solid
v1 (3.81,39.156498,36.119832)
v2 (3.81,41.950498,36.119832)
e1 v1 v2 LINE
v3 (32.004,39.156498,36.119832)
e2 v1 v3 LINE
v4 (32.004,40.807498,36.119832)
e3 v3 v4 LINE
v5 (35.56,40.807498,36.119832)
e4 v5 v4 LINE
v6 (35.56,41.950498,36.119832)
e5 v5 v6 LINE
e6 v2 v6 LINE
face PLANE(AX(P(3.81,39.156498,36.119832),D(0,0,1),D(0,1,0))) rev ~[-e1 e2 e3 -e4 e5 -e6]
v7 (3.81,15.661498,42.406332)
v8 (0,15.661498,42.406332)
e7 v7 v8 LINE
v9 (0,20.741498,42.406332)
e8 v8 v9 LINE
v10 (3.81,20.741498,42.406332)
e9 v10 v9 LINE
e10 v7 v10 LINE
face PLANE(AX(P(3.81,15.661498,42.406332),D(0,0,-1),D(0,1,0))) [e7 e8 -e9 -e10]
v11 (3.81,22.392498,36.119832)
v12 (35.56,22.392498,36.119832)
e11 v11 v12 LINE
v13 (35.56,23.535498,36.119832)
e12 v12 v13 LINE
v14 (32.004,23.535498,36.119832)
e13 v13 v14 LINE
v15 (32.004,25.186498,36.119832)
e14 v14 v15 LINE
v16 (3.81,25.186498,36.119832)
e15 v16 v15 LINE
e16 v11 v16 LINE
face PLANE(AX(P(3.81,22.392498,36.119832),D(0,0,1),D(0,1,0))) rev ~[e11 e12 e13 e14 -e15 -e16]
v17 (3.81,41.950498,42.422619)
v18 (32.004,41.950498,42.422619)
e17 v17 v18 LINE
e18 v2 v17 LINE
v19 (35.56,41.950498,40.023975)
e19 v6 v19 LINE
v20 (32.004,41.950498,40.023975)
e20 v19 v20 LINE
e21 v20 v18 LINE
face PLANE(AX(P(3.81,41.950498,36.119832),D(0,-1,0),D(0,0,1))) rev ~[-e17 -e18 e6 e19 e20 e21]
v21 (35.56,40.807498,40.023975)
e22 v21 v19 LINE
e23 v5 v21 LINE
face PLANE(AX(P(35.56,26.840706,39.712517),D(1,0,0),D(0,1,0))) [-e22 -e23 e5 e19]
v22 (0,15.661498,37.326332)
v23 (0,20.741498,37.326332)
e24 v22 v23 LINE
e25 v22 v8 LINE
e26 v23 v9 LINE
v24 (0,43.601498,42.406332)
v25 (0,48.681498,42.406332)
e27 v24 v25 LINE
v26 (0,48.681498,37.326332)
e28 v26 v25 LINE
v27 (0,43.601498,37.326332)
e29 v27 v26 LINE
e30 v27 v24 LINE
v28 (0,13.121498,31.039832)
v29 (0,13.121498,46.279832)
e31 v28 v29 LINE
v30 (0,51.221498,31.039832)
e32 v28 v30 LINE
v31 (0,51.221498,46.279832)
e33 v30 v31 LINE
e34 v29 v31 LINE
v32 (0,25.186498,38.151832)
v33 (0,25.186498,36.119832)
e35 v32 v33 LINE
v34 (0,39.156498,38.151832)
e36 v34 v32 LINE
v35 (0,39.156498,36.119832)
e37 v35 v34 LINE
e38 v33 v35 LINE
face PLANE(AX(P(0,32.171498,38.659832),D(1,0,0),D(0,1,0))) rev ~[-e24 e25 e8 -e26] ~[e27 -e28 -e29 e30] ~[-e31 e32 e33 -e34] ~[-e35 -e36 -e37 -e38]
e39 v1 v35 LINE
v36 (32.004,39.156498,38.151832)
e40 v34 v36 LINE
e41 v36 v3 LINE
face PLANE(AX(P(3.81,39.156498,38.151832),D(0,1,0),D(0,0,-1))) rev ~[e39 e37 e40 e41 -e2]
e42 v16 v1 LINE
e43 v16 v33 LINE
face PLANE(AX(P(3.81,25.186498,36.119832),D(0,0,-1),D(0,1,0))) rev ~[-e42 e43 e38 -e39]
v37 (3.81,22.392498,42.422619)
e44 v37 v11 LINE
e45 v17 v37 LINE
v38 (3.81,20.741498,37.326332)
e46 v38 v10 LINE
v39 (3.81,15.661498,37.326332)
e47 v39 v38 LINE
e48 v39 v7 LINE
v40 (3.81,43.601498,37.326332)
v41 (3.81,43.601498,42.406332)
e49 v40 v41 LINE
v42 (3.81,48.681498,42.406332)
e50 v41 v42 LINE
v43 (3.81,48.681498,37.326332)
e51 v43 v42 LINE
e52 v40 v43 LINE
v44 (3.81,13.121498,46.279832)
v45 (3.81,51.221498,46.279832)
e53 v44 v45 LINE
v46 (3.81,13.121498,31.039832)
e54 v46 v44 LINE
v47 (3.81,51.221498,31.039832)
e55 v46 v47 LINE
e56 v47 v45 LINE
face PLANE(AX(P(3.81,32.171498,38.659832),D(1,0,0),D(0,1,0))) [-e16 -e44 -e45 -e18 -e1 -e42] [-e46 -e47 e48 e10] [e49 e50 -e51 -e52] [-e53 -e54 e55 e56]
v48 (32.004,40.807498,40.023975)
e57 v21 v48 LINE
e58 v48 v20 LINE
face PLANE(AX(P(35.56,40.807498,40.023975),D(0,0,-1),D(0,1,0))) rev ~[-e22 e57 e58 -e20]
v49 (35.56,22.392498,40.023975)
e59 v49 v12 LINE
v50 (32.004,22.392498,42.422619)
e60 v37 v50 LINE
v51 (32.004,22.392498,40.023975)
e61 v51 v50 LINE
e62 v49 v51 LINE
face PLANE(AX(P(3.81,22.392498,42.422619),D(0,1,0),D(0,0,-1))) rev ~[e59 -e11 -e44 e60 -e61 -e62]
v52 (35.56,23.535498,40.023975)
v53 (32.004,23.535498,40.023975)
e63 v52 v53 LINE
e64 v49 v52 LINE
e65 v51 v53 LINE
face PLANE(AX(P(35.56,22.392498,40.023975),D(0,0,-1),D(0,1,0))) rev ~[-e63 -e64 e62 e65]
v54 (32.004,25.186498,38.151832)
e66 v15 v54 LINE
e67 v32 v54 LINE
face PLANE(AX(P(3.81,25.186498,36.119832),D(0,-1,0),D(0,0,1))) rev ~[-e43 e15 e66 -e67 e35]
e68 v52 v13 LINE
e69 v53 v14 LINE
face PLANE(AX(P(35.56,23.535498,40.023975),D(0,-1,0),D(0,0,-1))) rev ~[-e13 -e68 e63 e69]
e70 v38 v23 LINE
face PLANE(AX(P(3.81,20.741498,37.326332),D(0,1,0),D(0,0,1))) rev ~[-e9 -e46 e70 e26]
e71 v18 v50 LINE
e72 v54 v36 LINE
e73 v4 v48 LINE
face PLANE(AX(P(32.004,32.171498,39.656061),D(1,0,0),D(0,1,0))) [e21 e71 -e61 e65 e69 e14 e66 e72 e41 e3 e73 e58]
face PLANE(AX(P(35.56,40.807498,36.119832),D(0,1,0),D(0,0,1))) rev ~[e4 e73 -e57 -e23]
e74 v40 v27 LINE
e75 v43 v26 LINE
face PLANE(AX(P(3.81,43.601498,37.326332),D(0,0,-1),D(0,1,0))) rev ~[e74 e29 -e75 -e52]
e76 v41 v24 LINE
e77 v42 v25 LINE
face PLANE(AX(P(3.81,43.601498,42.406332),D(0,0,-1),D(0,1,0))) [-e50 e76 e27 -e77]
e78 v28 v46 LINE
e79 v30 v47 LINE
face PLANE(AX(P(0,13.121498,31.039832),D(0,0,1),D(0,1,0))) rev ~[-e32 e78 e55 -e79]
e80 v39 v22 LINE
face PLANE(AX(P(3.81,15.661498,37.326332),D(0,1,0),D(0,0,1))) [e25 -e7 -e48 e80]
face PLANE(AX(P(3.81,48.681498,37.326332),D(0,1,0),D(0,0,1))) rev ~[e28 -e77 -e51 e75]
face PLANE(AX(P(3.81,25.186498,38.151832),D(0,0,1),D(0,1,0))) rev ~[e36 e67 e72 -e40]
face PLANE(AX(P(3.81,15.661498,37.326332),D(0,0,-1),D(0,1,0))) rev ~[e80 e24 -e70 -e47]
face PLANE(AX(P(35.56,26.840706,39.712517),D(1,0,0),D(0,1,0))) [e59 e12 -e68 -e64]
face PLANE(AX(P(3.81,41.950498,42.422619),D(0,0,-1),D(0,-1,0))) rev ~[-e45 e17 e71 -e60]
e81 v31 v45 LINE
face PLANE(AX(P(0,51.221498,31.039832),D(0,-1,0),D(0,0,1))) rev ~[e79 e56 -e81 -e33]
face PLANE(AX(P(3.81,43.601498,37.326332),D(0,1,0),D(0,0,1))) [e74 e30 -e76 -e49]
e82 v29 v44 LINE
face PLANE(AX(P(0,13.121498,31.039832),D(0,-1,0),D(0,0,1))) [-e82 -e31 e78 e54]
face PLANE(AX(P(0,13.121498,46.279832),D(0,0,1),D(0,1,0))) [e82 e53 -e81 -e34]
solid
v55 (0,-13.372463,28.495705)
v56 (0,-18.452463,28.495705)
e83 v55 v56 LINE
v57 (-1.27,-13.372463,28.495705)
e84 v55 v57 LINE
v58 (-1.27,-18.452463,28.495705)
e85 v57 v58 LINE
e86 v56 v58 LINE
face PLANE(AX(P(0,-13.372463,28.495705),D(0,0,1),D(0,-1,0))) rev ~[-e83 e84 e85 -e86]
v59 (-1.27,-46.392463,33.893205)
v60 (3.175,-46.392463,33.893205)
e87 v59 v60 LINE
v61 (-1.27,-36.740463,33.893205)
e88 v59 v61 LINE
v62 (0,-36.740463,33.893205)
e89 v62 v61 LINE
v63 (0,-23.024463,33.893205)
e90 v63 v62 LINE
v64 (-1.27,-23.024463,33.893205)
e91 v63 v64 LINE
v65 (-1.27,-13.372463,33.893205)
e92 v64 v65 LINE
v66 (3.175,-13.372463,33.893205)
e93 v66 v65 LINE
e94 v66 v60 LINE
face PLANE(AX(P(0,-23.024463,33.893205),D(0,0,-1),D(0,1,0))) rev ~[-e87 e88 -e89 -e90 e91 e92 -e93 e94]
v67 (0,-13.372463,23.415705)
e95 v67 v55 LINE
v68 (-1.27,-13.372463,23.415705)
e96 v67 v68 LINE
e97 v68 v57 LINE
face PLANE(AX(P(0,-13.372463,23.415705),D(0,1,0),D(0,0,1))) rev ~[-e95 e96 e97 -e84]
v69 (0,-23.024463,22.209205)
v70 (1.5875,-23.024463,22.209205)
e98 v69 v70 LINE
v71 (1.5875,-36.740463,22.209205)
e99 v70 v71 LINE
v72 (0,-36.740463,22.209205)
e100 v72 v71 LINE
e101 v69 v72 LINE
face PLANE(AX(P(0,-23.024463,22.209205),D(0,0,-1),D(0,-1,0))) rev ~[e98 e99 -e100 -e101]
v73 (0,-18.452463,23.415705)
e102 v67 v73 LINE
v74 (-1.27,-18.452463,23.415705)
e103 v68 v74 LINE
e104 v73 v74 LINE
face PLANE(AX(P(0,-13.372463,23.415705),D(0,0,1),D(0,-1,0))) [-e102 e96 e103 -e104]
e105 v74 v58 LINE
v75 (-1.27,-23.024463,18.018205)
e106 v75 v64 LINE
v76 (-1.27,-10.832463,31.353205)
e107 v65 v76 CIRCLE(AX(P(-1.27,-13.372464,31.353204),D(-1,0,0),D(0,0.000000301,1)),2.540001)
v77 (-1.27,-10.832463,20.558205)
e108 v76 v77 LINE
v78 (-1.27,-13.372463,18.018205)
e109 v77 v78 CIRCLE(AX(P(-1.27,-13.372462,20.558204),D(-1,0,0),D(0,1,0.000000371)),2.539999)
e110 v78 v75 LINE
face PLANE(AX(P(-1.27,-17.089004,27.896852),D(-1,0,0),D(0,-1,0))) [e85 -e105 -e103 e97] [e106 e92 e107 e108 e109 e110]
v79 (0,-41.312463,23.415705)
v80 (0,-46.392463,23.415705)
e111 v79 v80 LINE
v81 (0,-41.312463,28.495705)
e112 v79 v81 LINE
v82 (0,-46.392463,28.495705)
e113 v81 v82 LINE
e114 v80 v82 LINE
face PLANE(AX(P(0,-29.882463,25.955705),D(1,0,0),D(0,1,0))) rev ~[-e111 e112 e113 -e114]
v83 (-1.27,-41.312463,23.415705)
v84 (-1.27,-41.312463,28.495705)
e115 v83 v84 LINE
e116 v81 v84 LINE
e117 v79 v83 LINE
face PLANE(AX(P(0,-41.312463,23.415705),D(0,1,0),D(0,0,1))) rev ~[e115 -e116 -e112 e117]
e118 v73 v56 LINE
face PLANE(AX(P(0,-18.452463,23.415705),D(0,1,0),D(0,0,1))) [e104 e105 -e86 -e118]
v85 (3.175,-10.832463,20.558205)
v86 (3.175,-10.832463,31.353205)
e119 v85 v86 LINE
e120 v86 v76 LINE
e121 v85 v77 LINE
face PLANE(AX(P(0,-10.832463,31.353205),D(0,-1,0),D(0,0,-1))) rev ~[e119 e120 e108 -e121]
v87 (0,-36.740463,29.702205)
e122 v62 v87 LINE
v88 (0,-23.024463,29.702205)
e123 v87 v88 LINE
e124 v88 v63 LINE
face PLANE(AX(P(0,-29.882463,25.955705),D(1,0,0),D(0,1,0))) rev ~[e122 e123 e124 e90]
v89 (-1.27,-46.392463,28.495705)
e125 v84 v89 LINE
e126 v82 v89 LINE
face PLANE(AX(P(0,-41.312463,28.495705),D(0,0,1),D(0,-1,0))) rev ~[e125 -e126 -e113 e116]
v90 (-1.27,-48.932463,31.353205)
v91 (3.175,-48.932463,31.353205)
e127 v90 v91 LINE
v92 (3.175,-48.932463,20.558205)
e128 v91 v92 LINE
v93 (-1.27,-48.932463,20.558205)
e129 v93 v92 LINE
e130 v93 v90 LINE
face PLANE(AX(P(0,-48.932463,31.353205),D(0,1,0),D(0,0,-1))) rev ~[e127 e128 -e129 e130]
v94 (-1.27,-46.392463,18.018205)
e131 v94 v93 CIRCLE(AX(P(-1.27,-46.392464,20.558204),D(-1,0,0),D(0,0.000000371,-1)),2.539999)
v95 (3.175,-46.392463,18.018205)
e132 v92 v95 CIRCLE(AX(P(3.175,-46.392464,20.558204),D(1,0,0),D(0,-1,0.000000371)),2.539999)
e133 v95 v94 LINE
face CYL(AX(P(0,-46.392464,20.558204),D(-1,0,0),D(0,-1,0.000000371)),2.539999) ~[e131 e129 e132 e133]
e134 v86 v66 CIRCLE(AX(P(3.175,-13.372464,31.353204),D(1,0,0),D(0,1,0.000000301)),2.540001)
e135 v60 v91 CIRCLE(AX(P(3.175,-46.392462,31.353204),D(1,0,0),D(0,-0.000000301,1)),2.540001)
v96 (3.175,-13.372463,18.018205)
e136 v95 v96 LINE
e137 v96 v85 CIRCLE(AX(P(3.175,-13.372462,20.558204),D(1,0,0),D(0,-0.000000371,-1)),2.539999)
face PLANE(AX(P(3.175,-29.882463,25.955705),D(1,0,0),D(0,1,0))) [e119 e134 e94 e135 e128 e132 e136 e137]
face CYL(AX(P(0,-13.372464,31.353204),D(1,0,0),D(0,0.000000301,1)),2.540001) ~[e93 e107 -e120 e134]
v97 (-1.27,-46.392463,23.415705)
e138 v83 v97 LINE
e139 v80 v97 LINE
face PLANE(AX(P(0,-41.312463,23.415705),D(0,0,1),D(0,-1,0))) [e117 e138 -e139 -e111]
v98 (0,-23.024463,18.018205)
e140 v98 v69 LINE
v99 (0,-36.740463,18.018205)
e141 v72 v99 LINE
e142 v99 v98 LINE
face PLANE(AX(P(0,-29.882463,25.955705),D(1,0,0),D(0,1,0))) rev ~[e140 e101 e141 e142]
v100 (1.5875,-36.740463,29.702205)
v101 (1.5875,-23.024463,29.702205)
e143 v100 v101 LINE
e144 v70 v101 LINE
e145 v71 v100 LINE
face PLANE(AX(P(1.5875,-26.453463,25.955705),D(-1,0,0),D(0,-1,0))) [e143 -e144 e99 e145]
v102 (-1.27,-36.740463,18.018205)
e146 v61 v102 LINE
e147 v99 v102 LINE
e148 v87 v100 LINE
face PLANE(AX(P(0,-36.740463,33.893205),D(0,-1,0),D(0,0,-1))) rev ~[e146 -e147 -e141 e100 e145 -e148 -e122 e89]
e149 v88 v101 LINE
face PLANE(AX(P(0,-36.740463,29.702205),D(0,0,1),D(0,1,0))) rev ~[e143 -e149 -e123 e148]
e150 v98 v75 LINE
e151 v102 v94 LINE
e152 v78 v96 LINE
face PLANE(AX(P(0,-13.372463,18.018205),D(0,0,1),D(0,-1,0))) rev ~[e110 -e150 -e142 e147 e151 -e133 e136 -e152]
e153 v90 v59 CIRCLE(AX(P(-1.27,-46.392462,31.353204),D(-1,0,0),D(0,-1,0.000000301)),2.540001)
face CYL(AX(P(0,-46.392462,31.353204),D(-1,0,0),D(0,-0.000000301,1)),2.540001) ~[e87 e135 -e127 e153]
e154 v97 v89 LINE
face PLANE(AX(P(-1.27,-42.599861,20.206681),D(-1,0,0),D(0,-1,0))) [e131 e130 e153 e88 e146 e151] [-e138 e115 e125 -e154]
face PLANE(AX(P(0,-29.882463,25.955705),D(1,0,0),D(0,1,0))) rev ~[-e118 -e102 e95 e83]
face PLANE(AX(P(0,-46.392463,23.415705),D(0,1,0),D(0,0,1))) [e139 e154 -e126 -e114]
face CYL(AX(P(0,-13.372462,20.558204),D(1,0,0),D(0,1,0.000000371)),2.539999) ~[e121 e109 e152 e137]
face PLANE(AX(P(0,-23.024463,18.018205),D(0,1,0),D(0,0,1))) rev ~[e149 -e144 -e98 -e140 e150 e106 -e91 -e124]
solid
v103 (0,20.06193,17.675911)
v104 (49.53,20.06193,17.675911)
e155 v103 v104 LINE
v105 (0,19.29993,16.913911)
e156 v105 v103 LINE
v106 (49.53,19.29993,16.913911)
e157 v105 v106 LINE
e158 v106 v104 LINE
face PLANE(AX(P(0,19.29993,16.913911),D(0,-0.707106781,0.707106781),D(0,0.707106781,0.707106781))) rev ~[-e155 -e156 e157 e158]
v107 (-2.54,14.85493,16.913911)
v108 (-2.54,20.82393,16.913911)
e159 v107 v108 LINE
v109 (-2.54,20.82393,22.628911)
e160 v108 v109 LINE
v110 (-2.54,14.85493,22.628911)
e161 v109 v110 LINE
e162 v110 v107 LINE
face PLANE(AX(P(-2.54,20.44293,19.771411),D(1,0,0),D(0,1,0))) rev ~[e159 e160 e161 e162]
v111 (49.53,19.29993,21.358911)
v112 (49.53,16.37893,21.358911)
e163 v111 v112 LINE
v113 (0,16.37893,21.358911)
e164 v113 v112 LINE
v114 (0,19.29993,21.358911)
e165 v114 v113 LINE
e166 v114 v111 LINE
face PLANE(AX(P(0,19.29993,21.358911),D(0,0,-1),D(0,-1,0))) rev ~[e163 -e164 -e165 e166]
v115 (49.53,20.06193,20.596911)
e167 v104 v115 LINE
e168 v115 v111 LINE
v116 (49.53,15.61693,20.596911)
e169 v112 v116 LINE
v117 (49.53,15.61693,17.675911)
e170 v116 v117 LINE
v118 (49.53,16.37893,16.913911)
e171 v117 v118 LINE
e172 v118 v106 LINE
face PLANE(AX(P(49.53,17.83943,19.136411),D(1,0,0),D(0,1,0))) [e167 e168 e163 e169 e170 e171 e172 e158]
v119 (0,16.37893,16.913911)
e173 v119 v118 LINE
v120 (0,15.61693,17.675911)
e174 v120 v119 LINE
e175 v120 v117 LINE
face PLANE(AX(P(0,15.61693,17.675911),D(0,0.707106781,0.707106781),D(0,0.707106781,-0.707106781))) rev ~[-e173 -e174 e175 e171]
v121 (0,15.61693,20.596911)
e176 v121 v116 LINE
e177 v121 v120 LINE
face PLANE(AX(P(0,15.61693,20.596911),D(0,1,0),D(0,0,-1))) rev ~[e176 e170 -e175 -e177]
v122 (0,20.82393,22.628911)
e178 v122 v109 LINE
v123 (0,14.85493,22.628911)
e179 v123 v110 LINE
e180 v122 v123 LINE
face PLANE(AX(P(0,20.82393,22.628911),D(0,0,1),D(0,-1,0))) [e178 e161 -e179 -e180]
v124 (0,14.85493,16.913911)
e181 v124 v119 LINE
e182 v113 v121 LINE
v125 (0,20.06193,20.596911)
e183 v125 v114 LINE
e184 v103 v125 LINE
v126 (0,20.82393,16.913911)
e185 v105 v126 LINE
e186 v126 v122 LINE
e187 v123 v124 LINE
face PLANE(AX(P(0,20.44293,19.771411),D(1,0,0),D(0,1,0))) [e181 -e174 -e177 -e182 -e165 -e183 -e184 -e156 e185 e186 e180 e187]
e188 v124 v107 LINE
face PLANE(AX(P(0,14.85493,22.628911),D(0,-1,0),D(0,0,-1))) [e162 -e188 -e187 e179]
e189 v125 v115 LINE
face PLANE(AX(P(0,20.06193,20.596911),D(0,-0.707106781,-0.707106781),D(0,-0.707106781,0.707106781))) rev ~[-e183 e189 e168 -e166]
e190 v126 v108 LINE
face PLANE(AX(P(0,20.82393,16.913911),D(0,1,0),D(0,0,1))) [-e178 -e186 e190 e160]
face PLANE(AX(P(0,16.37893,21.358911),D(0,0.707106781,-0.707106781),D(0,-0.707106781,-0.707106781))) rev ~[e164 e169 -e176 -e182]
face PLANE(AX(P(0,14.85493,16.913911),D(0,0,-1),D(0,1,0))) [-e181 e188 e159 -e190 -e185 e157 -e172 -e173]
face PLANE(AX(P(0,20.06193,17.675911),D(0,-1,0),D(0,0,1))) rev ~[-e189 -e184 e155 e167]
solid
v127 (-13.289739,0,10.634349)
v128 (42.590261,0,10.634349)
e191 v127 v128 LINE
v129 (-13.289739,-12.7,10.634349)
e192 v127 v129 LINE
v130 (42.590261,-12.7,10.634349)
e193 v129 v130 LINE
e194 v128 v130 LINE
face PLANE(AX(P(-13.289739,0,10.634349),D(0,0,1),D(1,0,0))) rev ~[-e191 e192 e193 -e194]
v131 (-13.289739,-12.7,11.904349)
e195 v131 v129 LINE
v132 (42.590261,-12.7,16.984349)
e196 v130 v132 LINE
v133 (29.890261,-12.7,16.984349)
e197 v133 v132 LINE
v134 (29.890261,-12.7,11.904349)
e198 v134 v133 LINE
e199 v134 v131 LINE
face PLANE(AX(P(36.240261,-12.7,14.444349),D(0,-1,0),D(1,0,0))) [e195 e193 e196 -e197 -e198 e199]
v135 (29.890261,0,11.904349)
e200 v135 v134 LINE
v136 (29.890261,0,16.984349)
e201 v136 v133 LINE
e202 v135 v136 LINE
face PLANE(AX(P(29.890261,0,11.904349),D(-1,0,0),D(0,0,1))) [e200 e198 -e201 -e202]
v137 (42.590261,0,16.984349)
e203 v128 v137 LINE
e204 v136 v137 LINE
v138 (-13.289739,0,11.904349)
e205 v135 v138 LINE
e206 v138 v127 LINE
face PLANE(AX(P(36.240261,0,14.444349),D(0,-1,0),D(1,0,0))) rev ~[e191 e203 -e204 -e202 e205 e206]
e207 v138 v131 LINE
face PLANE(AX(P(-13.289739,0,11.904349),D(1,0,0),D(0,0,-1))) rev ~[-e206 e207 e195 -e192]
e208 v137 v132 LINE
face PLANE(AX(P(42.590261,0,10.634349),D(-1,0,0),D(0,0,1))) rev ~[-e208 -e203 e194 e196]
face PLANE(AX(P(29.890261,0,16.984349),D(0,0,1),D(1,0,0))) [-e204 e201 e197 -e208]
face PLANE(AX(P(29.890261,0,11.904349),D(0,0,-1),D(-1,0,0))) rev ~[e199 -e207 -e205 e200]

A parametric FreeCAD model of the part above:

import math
import FreeCAD as App
import Part
import Sketcher
Q = App.Units.Quantity

doc = App.newDocument("Part")
params = doc.addObject("Spreadsheet::Sheet", "Params")
for row, (alias, value) in enumerate([
    ("sketch1_width", "1.7 in"),
    ("sketch1_width2", "2.2 in"),
    ("sketch1_height", "0.2 in"),
    ("sketch1_height2", "0.05 in"),
    ("pad1_length", "0.5 in"),
    ("sketch2_radius", "0.1 in"),
    ("sketch2_width", "1.3 in"),
    ("sketch2_height", "0.425 in"),
    ("pad2_length", "0.125 in"),
    ("sketch3_width", "0.54 in"),
    ("sketch3_height", "0.295 in"),
    ("pocket1_length", "0.0625 in"),
    ("sketch4_radius", "0.1 in"),
    ("sketch4_width", "0.2 in"),
    ("sketch4_width2", "0.38 in"),
    ("sketch4_height", "0.425 in"),
    ("pad3_length", "0.05 in"),
    ("sketch5_width", "0.115 in"),
    ("pad4_length", "1.95 in"),
    ("sketch6_width", "0.235 in"),
    ("sketch6_height", "0.225 in"),
    ("pad5_length", "0.1 in"),
    ("sketch7_width", "1.5 in"),
    ("sketch7_height", "0.6 in"),
    ("pad6_length", "0.15 in"),
    ("sketch8_width", "0.2 in"),
    ("sketch8_width2", "0.55 in"),
    ("sketch8_height", "0.08 in"),
    ("pocket2_length", "0.4 in"),
    ("sketch9_width", "0.55 in"),
    ("sketch9_width2", "0.11 in"),
    ("sketch9_height", "0.08 in"),
    ("pad7_length", "1.25 in"),
    ("sketch10_width", "0.55 in"),
    ("sketch10_width2", "0.77 in"),
    ("sketch10_height", "0.08 in"),
    ("sketch10_width3", "0.065 in"),
    ("pocket3_length", "0.14 in"),
], start=1):
    params.set(f"A{row}", alias)
    params.set(f"B{row}", "=" + value)
    params.setAlias(f"B{row}", alias)

body = doc.addObject("PartDesign::Body", "Body")

# Sketch on XZ plane
sketch1 = body.newObject("Sketcher::SketchObject", "Sketch")
sketch1.AttachmentSupport = (doc.getObject("XZ_Plane"), [""])
sketch1.MapMode = "FlatFace"
sketch1.addGeometry(Part.LineSegment(App.Vector(29.9, 17, 0), App.Vector(29.9, 11.9, 0)), False)
sketch1.addGeometry(Part.LineSegment(App.Vector(29.9, 11.9, 0), App.Vector(-13.3, 11.9, 0)), False)
sketch1.addGeometry(Part.LineSegment(App.Vector(-13.3, 11.9, 0), App.Vector(-13.3, 10.6, 0)), False)
sketch1.addGeometry(Part.LineSegment(App.Vector(-13.3, 10.6, 0), App.Vector(42.6, 10.6, 0)), False)
sketch1.addGeometry(Part.LineSegment(App.Vector(42.6, 10.6, 0), App.Vector(42.6, 17, 0)), False)
sketch1.addGeometry(Part.LineSegment(App.Vector(42.6, 17, 0), App.Vector(29.9, 17, 0)), False)
sketch1.addConstraint(Sketcher.Constraint("Coincident", 0, 2, 1, 1))
sketch1.addConstraint(Sketcher.Constraint("Coincident", 1, 2, 2, 1))
sketch1.addConstraint(Sketcher.Constraint("Coincident", 2, 2, 3, 1))
sketch1.addConstraint(Sketcher.Constraint("Coincident", 3, 2, 4, 1))
sketch1.addConstraint(Sketcher.Constraint("Coincident", 4, 2, 5, 1))
sketch1.addConstraint(Sketcher.Constraint("Coincident", 5, 2, 0, 1))
sketch1.addConstraint(Sketcher.Constraint("Vertical", 0))
sketch1.addConstraint(Sketcher.Constraint("Horizontal", 1))
sketch1.addConstraint(Sketcher.Constraint("Vertical", 2))
sketch1.addConstraint(Sketcher.Constraint("Horizontal", 3))
sketch1.addConstraint(Sketcher.Constraint("Vertical", 4))
sketch1.addConstraint(Sketcher.Constraint("Horizontal", 5))
sketch1.addConstraint(Sketcher.Constraint("DistanceX", 1, 2, 1, 1, Q("1.7 in")))
sketch1.addConstraint(Sketcher.Constraint("DistanceX", 3, 1, 3, 2, Q("2.2 in")))
sketch1.addConstraint(Sketcher.Constraint("DistanceY", 0, 2, 0, 1, Q("0.2 in")))
sketch1.addConstraint(Sketcher.Constraint("DistanceY", 2, 2, 2, 1, Q("0.05 in")))
sketch1.addConstraint(Sketcher.Constraint("DistanceX", -1, 1, 0, 2, Q("29.890261 mm")))
sketch1.addConstraint(Sketcher.Constraint("DistanceY", -1, 1, 0, 2, Q("11.904349 mm")))
sketch1.setExpression("Constraints[12]", "Params.sketch1_width")
sketch1.setExpression("Constraints[13]", "Params.sketch1_width2")
sketch1.setExpression("Constraints[14]", "Params.sketch1_height")
sketch1.setExpression("Constraints[15]", "Params.sketch1_height2")
pad1 = body.newObject("PartDesign::Pad", "Pad")
pad1.Profile = sketch1
pad1.setExpression("Length", "Params.pad1_length")
body2 = doc.addObject("PartDesign::Body", "Body001")

# Sketch on YZ plane
sketch2 = body2.newObject("Sketcher::SketchObject", "Sketch001")
sketch2.AttachmentSupport = (doc.getObject("YZ_Plane001"), [""])
sketch2.MapMode = "FlatFace"
sketch2.addGeometry(Part.LineSegment(App.Vector(-13.4, 33.9, 0), App.Vector(-46.4, 33.9, 0)), False)
sketch2.addGeometry(Part.ArcOfCircle(Part.Circle(App.Vector(-46.4, 31.4, 0), App.Vector(0, 0, 1), 2.5), math.radians(90), math.radians(180)), False)
sketch2.addGeometry(Part.LineSegment(App.Vector(-48.9, 31.4, 0), App.Vector(-48.9, 20.6, 0)), False)
sketch2.addGeometry(Part.ArcOfCircle(Part.Circle(App.Vector(-46.4, 20.6, 0), App.Vector(0, 0, 1), 2.5), math.radians(180), math.radians(270)), False)
sketch2.addGeometry(Part.LineSegment(App.Vector(-46.4, 18, 0), App.Vector(-13.4, 18, 0)), False)
sketch2.addGeometry(Part.ArcOfCircle(Part.Circle(App.Vector(-13.4, 20.6, 0), App.Vector(0, 0, 1), 2.5), math.radians(-90), math.radians(0)), False)
sketch2.addGeometry(Part.LineSegment(App.Vector(-10.8, 20.6, 0), App.Vector(-10.8, 31.4, 0)), False)
sketch2.addGeometry(Part.ArcOfCircle(Part.Circle(App.Vector(-13.4, 31.4, 0), App.Vector(0, 0, 1), 2.5), math.radians(0), math.radians(90)), False)
sketch2.addConstraint(Sketcher.Constraint("Tangent", 0, 2, 1, 1))
sketch2.addConstraint(Sketcher.Constraint("Tangent", 1, 2, 2, 1))
sketch2.addConstraint(Sketcher.Constraint("Tangent", 2, 2, 3, 1))
sketch2.addConstraint(Sketcher.Constraint("Tangent", 3, 2, 4, 1))
sketch2.addConstraint(Sketcher.Constraint("Tangent", 4, 2, 5, 1))
sketch2.addConstraint(Sketcher.Constraint("Tangent", 5, 2, 6, 1))
sketch2.addConstraint(Sketcher.Constraint("Tangent", 6, 2, 7, 1))
sketch2.addConstraint(Sketcher.Constraint("Tangent", 7, 2, 0, 1))
sketch2.addConstraint(Sketcher.Constraint("Horizontal", 0))
sketch2.addConstraint(Sketcher.Constraint("Vertical", 2))
sketch2.addConstraint(Sketcher.Constraint("Horizontal", 4))
sketch2.addConstraint(Sketcher.Constraint("Vertical", 6))
sketch2.addConstraint(Sketcher.Constraint("Equal", 1, 3))
sketch2.addConstraint(Sketcher.Constraint("Equal", 3, 5))
sketch2.addConstraint(Sketcher.Constraint("Equal", 5, 7))
sketch2.addConstraint(Sketcher.Constraint("Radius", 1, Q("0.1 in")))
sketch2.addConstraint(Sketcher.Constraint("DistanceX", 0, 2, 0, 1, Q("1.3 in")))
sketch2.addConstraint(Sketcher.Constraint("DistanceY", 2, 2, 2, 1, Q("0.425 in")))
sketch2.addConstraint(Sketcher.Constraint("DistanceX", 1, 3, -1, 1, Q("46.392462 mm")))
sketch2.addConstraint(Sketcher.Constraint("DistanceY", -1, 1, 1, 3, Q("31.353204 mm")))
sketch2.setExpression("Constraints[15]", "Params.sketch2_radius")
sketch2.setExpression("Constraints[16]", "Params.sketch2_width")
sketch2.setExpression("Constraints[17]", "Params.sketch2_height")
pad2 = body2.newObject("PartDesign::Pad", "Pad001")
pad2.Profile = sketch2
pad2.setExpression("Length", "Params.pad2_length")

# Sketch on YZ plane
sketch3 = body2.newObject("Sketcher::SketchObject", "Sketch002")
sketch3.AttachmentSupport = (doc.getObject("YZ_Plane001"), [""])
sketch3.MapMode = "FlatFace"
sketch3.addGeometry(Part.LineSegment(App.Vector(-23, 30, 0), App.Vector(-23, 22, 0)), False)
sketch3.addGeometry(Part.LineSegment(App.Vector(-23, 22, 0), App.Vector(-37, 22, 0)), False)
sketch3.addGeometry(Part.LineSegment(App.Vector(-37, 22, 0), App.Vector(-37, 30, 0)), False)
sketch3.addGeometry(Part.LineSegment(App.Vector(-37, 30, 0), App.Vector(-23, 30, 0)), False)
sketch3.addConstraint(Sketcher.Constraint("Coincident", 0, 2, 1, 1))
sketch3.addConstraint(Sketcher.Constraint("Coincident", 1, 2, 2, 1))
sketch3.addConstraint(Sketcher.Constraint("Coincident", 2, 2, 3, 1))
sketch3.addConstraint(Sketcher.Constraint("Coincident", 3, 2, 0, 1))
sketch3.addConstraint(Sketcher.Constraint("Vertical", 0))
sketch3.addConstraint(Sketcher.Constraint("Horizontal", 1))
sketch3.addConstraint(Sketcher.Constraint("Vertical", 2))
sketch3.addConstraint(Sketcher.Constraint("Horizontal", 3))
sketch3.addConstraint(Sketcher.Constraint("DistanceX", 1, 2, 1, 1, Q("0.54 in")))
sketch3.addConstraint(Sketcher.Constraint("DistanceY", 0, 2, 0, 1, Q("0.295 in")))
sketch3.addConstraint(Sketcher.Constraint("DistanceX", 0, 2, -1, 1, Q("23.024463 mm")))
sketch3.addConstraint(Sketcher.Constraint("DistanceY", -1, 1, 0, 2, Q("22.209205 mm")))
sketch3.setExpression("Constraints[8]", "Params.sketch3_width")
sketch3.setExpression("Constraints[9]", "Params.sketch3_height")
pocket1 = body2.newObject("PartDesign::Pocket", "Pocket")
pocket1.Profile = sketch3
pocket1.setExpression("Length", "Params.pocket1_length")
pocket1.Reversed = True

# Sketch on YZ plane
sketch4 = body2.newObject("Sketcher::SketchObject", "Sketch003")
sketch4.AttachmentSupport = (doc.getObject("YZ_Plane001"), [""])
sketch4.MapMode = "FlatFace"
sketch4.addGeometry(Part.LineSegment(App.Vector(-23, 33.9, 0), App.Vector(-13.4, 33.9, 0)), False)
sketch4.addGeometry(Part.ArcOfCircle(Part.Circle(App.Vector(-13.4, 31.4, 0), App.Vector(0, 0, 1), 2.5), math.radians(0), math.radians(90)), False)
sketch4.addGeometry(Part.LineSegment(App.Vector(-10.8, 31.4, 0), App.Vector(-10.8, 20.6, 0)), False)
sketch4.addGeometry(Part.ArcOfCircle(Part.Circle(App.Vector(-13.4, 20.6, 0), App.Vector(0, 0, 1), 2.5), math.radians(-90), math.radians(0)), False)
sketch4.addGeometry(Part.LineSegment(App.Vector(-13.4, 18, 0), App.Vector(-23, 18, 0)), False)
sketch4.addGeometry(Part.LineSegment(App.Vector(-23, 18, 0), App.Vector(-23, 33.9, 0)), False)
sketch4.addGeometry(Part.LineSegment(App.Vector(-18.5, 23.4, 0), App.Vector(-13.4, 23.4, 0)), False)
sketch4.addGeometry(Part.LineSegment(App.Vector(-13.4, 23.4, 0), App.Vector(-13.4, 28.5, 0)), False)
sketch4.addGeometry(Part.LineSegment(App.Vector(-13.4, 28.5, 0), App.Vector(-18.5, 28.5, 0)), False)
sketch4.addGeometry(Part.LineSegment(App.Vector(-18.5, 28.5, 0), App.Vector(-18.5, 23.4, 0)), False)
sketch4.addGeometry(Part.LineSegment(App.Vector(-36.7, 18, 0), App.Vector(-46.4, 18, 0)), False)
sketch4.addGeometry(Part.ArcOfCircle(Part.Circle(App.Vector(-46.4, 20.6, 0), App.Vector(0, 0, 1), 2.5), math.radians(180), math.radians(270)), False)
sketch4.addGeometry(Part.LineSegment(App.Vector(-48.9, 20.6, 0), App.Vector(-48.9, 31.4, 0)), False)
sketch4.addGeometry(Part.ArcOfCircle(Part.Circle(App.Vector(-46.4, 31.4, 0), App.Vector(0, 0, 1), 2.5), math.radians(90), math.radians(180)), False)
sketch4.addGeometry(Part.LineSegment(App.Vector(-46.4, 33.9, 0), App.Vector(-36.7, 33.9, 0)), False)
sketch4.addGeometry(Part.LineSegment(App.Vector(-36.7, 33.9, 0), App.Vector(-36.7, 18, 0)), False)
sketch4.addGeometry(Part.LineSegment(App.Vector(-46.4, 23.4, 0), App.Vector(-41.3, 23.4, 0)), False)
sketch4.addGeometry(Part.LineSegment(App.Vector(-41.3, 23.4, 0), App.Vector(-41.3, 28.5, 0)), False)
sketch4.addGeometry(Part.LineSegment(App.Vector(-41.3, 28.5, 0), App.Vector(-46.4, 28.5, 0)), False)
sketch4.addGeometry(Part.LineSegment(App.Vector(-46.4, 28.5, 0), App.Vector(-46.4, 23.4, 0)), False)
sketch4.addConstraint(Sketcher.Constraint("Tangent", 0, 2, 1, 2))
sketch4.addConstraint(Sketcher.Constraint("Tangent", 1, 1, 2, 1))
sketch4.addConstraint(Sketcher.Constraint("Tangent", 2, 2, 3, 2))
sketch4.addConstraint(Sketcher.Constraint("Tangent", 3, 1, 4, 1))
sketch4.addConstraint(Sketcher.Constraint("Coincident", 4, 2, 5, 1))
sketch4.addConstraint(Sketcher.Constraint("Coincident", 5, 2, 0, 1))
sketch4.addConstraint(Sketcher.Constraint("Coincident", 6, 2, 7, 1))
sketch4.addConstraint(Sketcher.Constraint("Coincident", 7, 2, 8, 1))
sketch4.addConstraint(Sketcher.Constraint("Coincident", 8, 2, 9, 1))
sketch4.addConstraint(Sketcher.Constraint("Coincident", 9, 2, 6, 1))
sketch4.addConstraint(Sketcher.Constraint("Tangent", 10, 2, 11, 2))
sketch4.addConstraint(Sketcher.Constraint("Tangent", 11, 1, 12, 1))
sketch4.addConstraint(Sketcher.Constraint("Tangent", 12, 2, 13, 2))
sketch4.addConstraint(Sketcher.Constraint("Tangent", 13, 1, 14, 1))
sketch4.addConstraint(Sketcher.Constraint("Coincident", 14, 2, 15, 1))
sketch4.addConstraint(Sketcher.Constraint("Coincident", 15, 2, 10, 1))
sketch4.addConstraint(Sketcher.Constraint("Coincident", 16, 2, 17, 1))
sketch4.addConstraint(Sketcher.Constraint("Coincident", 17, 2, 18, 1))
sketch4.addConstraint(Sketcher.Constraint("Coincident", 18, 2, 19, 1))
sketch4.addConstraint(Sketcher.Constraint("Coincident", 19, 2, 16, 1))
sketch4.addConstraint(Sketcher.Constraint("Horizontal", 0))
sketch4.addConstraint(Sketcher.Constraint("Vertical", 2))
sketch4.addConstraint(Sketcher.Constraint("Horizontal", 4))
sketch4.addConstraint(Sketcher.Constraint("Vertical", 5))
sketch4.addConstraint(Sketcher.Constraint("Horizontal", 6))
sketch4.addConstraint(Sketcher.Constraint("Vertical", 7))
sketch4.addConstraint(Sketcher.Constraint("Horizontal", 8))
sketch4.addConstraint(Sketcher.Constraint("Vertical", 9))
sketch4.addConstraint(Sketcher.Constraint("Horizontal", 10))
sketch4.addConstraint(Sketcher.Constraint("Vertical", 12))
sketch4.addConstraint(Sketcher.Constraint("Horizontal", 14))
sketch4.addConstraint(Sketcher.Constraint("Vertical", 15))
sketch4.addConstraint(Sketcher.Constraint("Horizontal", 16))
sketch4.addConstraint(Sketcher.Constraint("Vertical", 17))
sketch4.addConstraint(Sketcher.Constraint("Horizontal", 18))
sketch4.addConstraint(Sketcher.Constraint("Vertical", 19))
sketch4.addConstraint(Sketcher.Constraint("Equal", 1, 3))
sketch4.addConstraint(Sketcher.Constraint("Equal", 3, 11))
sketch4.addConstraint(Sketcher.Constraint("Equal", 11, 13))
sketch4.addConstraint(Sketcher.Constraint("Horizontal", 3, 3, 11, 3))
sketch4.addConstraint(Sketcher.Constraint("Horizontal", 1, 3, 13, 3))
sketch4.addConstraint(Sketcher.Constraint("Horizontal", 9, 2, 16, 2))
sketch4.addConstraint(Sketcher.Constraint("Horizontal", 8, 2, 17, 2))
sketch4.addConstraint(Sketcher.Constraint("Vertical", 3, 1, 6, 2))
sketch4.addConstraint(Sketcher.Constraint("Vertical", 13, 1, 18, 2))
sketch4.addConstraint(Sketcher.Constraint("Equal", 4, 10))
sketch4.addConstraint(Sketcher.Constraint("Equal", 8, 16))
sketch4.addConstraint(Sketcher.Constraint("Equal", 18, 7))
sketch4.addConstraint(Sketcher.Constraint("Radius", 1, Q("0.1 in")))
sketch4.addConstraint(Sketcher.Constraint("DistanceX", 6, 1, 6, 2, Q("0.2 in")))
sketch4.addConstraint(Sketcher.Constraint("DistanceX", 0, 1, 0, 2, Q("0.38 in")))
sketch4.addConstraint(Sketcher.Constraint("DistanceX", 11, 3, 3, 3, Q("1.3000001 in")))
sketch4.addConstraint(Sketcher.Constraint("DistanceY", 2, 2, 2, 1, Q("0.425 in")))
sketch4.addConstraint(Sketcher.Constraint("DistanceY", 6, 2, 1, 3, Q("0.3125 in")))
sketch4.addConstraint(Sketcher.Constraint("DistanceX", 1, 3, -1, 1, Q("13.372464 mm")))
sketch4.addConstraint(Sketcher.Constraint("DistanceY", -1, 1, 1, 3, Q("31.353204 mm")))
sketch4.setExpression("Constraints[48]", "Params.sketch4_radius")
sketch4.setExpression("Constraints[49]", "Params.sketch4_width")
sketch4.setExpression("Constraints[50]", "Params.sketch4_width2")
sketch4.setExpression("Constraints[52]", "Params.sketch4_height")
pad3 = body2.newObject("PartDesign::Pad", "Pad002")
pad3.Profile = sketch4
pad3.setExpression("Length", "Params.pad3_length")
pad3.Reversed = True
body3 = doc.addObject("PartDesign::Body", "Body002")

# Sketch on YZ plane
sketch5 = body3.newObject("Sketcher::SketchObject", "Sketch004")
sketch5.AttachmentSupport = (doc.getObject("YZ_Plane002"), [""])
sketch5.MapMode = "FlatFace"
sketch5.addGeometry(Part.LineSegment(App.Vector(19.3, 21.4, 0), App.Vector(16.4, 21.4, 0)), False)
sketch5.addGeometry(Part.LineSegment(App.Vector(16.4, 21.4, 0), App.Vector(15.6, 20.6, 0)), False)
sketch5.addGeometry(Part.LineSegment(App.Vector(15.6, 20.6, 0), App.Vector(15.6, 17.7, 0)), False)
sketch5.addGeometry(Part.LineSegment(App.Vector(15.6, 17.7, 0), App.Vector(16.4, 16.9, 0)), False)
sketch5.addGeometry(Part.LineSegment(App.Vector(16.4, 16.9, 0), App.Vector(19.3, 16.9, 0)), False)
sketch5.addGeometry(Part.LineSegment(App.Vector(19.3, 16.9, 0), App.Vector(20.1, 17.7, 0)), False)
sketch5.addGeometry(Part.LineSegment(App.Vector(20.1, 17.7, 0), App.Vector(20.1, 20.6, 0)), False)
sketch5.addGeometry(Part.LineSegment(App.Vector(20.1, 20.6, 0), App.Vector(19.3, 21.4, 0)), False)
sketch5.addConstraint(Sketcher.Constraint("Coincident", 0, 2, 1, 1))
sketch5.addConstraint(Sketcher.Constraint("Coincident", 1, 2, 2, 1))
sketch5.addConstraint(Sketcher.Constraint("Coincident", 2, 2, 3, 1))
sketch5.addConstraint(Sketcher.Constraint("Coincident", 3, 2, 4, 1))
sketch5.addConstraint(Sketcher.Constraint("Coincident", 4, 2, 5, 1))
sketch5.addConstraint(Sketcher.Constraint("Coincident", 5, 2, 6, 1))
sketch5.addConstraint(Sketcher.Constraint("Coincident", 6, 2, 7, 1))
sketch5.addConstraint(Sketcher.Constraint("Coincident", 7, 2, 0, 1))
sketch5.addConstraint(Sketcher.Constraint("Horizontal", 0))
sketch5.addConstraint(Sketcher.Constraint("Vertical", 2))
sketch5.addConstraint(Sketcher.Constraint("Horizontal", 4))
sketch5.addConstraint(Sketcher.Constraint("Vertical", 6))
sketch5.addConstraint(Sketcher.Constraint("Perpendicular", 1, 3))
sketch5.addConstraint(Sketcher.Constraint("Perpendicular", 3, 5))
sketch5.addConstraint(Sketcher.Constraint("Perpendicular", 5, 7))
sketch5.addConstraint(Sketcher.Constraint("Horizontal", 2, 2, 5, 2))
sketch5.addConstraint(Sketcher.Constraint("Horizontal", 1, 2, 6, 2))
sketch5.addConstraint(Sketcher.Constraint("Vertical", 0, 2, 3, 2))
sketch5.addConstraint(Sketcher.Constraint("Vertical", 4, 2, 7, 2))
sketch5.addConstraint(Sketcher.Constraint("Equal", 4, 2))
sketch5.addConstraint(Sketcher.Constraint("DistanceX", 0, 2, 0, 1, Q("0.115 in")))
sketch5.addConstraint(Sketcher.Constraint("DistanceX", 1, 2, 0, 2, Q("0.03 in")))
sketch5.addConstraint(Sketcher.Constraint("DistanceX", -1, 1, 0, 2, Q("16.37893 mm")))
sketch5.addConstraint(Sketcher.Constraint("DistanceY", -1, 1, 0, 2, Q("21.358911 mm")))
sketch5.setExpression("Constraints[20]", "Params.sketch5_width")
pad4 = body3.newObject("PartDesign::Pad", "Pad003")
pad4.Profile = sketch5
pad4.setExpression("Length", "Params.pad4_length")

# Sketch on YZ plane
sketch6 = body3.newObject("Sketcher::SketchObject", "Sketch005")
sketch6.AttachmentSupport = (doc.getObject("YZ_Plane002"), [""])
sketch6.MapMode = "FlatFace"
sketch6.addGeometry(Part.LineSegment(App.Vector(21, 17, 0), App.Vector(21, 23, 0)), False)
sketch6.addGeometry(Part.LineSegment(App.Vector(21, 23, 0), App.Vector(15, 23, 0)), False)
sketch6.addGeometry(Part.LineSegment(App.Vector(15, 23, 0), App.Vector(15, 17, 0)), False)
sketch6.addGeometry(Part.LineSegment(App.Vector(15, 17, 0), App.Vector(21, 17, 0)), False)
sketch6.addConstraint(Sketcher.Constraint("Coincident", 0, 2, 1, 1))
sketch6.addConstraint(Sketcher.Constraint("Coincident", 1, 2, 2, 1))
sketch6.addConstraint(Sketcher.Constraint("Coincident", 2, 2, 3, 1))
sketch6.addConstraint(Sketcher.Constraint("Coincident", 3, 2, 0, 1))
sketch6.addConstraint(Sketcher.Constraint("Vertical", 0))
sketch6.addConstraint(Sketcher.Constraint("Horizontal", 1))
sketch6.addConstraint(Sketcher.Constraint("Vertical", 2))
sketch6.addConstraint(Sketcher.Constraint("Horizontal", 3))
sketch6.addConstraint(Sketcher.Constraint("DistanceX", 1, 2, 1, 1, Q("0.235 in")))
sketch6.addConstraint(Sketcher.Constraint("DistanceY", 0, 1, 0, 2, Q("0.225 in")))
sketch6.addConstraint(Sketcher.Constraint("DistanceX", -1, 1, 0, 2, Q("20.82393 mm")))
sketch6.addConstraint(Sketcher.Constraint("DistanceY", -1, 1, 0, 2, Q("22.628911 mm")))
sketch6.setExpression("Constraints[8]", "Params.sketch6_width")
sketch6.setExpression("Constraints[9]", "Params.sketch6_height")
pad5 = body3.newObject("PartDesign::Pad", "Pad004")
pad5.Profile = sketch6
pad5.setExpression("Length", "Params.pad5_length")
pad5.Reversed = True
body4 = doc.addObject("PartDesign::Body", "Body003")

# Sketch on YZ plane
sketch7 = body4.newObject("Sketcher::SketchObject", "Sketch006")
sketch7.AttachmentSupport = (doc.getObject("YZ_Plane003"), [""])
sketch7.MapMode = "FlatFace"
sketch7.addGeometry(Part.LineSegment(App.Vector(13, 46, 0), App.Vector(13, 31, 0)), False)
sketch7.addGeometry(Part.LineSegment(App.Vector(13, 31, 0), App.Vector(51, 31, 0)), False)
sketch7.addGeometry(Part.LineSegment(App.Vector(51, 31, 0), App.Vector(51, 46, 0)), False)
sketch7.addGeometry(Part.LineSegment(App.Vector(51, 46, 0), App.Vector(13, 46, 0)), False)
sketch7.addConstraint(Sketcher.Constraint("Coincident", 0, 2, 1, 1))
sketch7.addConstraint(Sketcher.Constraint("Coincident", 1, 2, 2, 1))
sketch7.addConstraint(Sketcher.Constraint("Coincident", 2, 2, 3, 1))
sketch7.addConstraint(Sketcher.Constraint("Coincident", 3, 2, 0, 1))
sketch7.addConstraint(Sketcher.Constraint("Vertical", 0))
sketch7.addConstraint(Sketcher.Constraint("Horizontal", 1))
sketch7.addConstraint(Sketcher.Constraint("Vertical", 2))
sketch7.addConstraint(Sketcher.Constraint("Horizontal", 3))
sketch7.addConstraint(Sketcher.Constraint("DistanceX", 1, 1, 1, 2, Q("1.5 in")))
sketch7.addConstraint(Sketcher.Constraint("DistanceY", 0, 2, 0, 1, Q("0.6 in")))
sketch7.addConstraint(Sketcher.Constraint("DistanceX", -1, 1, 0, 2, Q("13.121498 mm")))
sketch7.addConstraint(Sketcher.Constraint("DistanceY", -1, 1, 0, 2, Q("31.039832 mm")))
sketch7.setExpression("Constraints[8]", "Params.sketch7_width")
sketch7.setExpression("Constraints[9]", "Params.sketch7_height")
pad6 = body4.newObject("PartDesign::Pad", "Pad005")
pad6.Profile = sketch7
pad6.setExpression("Length", "Params.pad6_length")

# Sketch on YZ plane
sketch8 = body4.newObject("Sketcher::SketchObject", "Sketch007")
sketch8.AttachmentSupport = (doc.getObject("YZ_Plane003"), [""])
sketch8.MapMode = "FlatFace"
sketch8.AttachmentOffset = App.Placement(App.Vector(0, 0, 0.15 * 25.4), App.Rotation())
sketch8.addGeometry(Part.LineSegment(App.Vector(25.2, 38.2, 0), App.Vector(25.2, 36.1, 0)), False)
sketch8.addGeometry(Part.LineSegment(App.Vector(25.2, 36.1, 0), App.Vector(39.2, 36.1, 0)), False)
sketch8.addGeometry(Part.LineSegment(App.Vector(39.2, 36.1, 0), App.Vector(39.2, 38.2, 0)), False)
sketch8.addGeometry(Part.LineSegment(App.Vector(39.2, 38.2, 0), App.Vector(25.2, 38.2, 0)), False)
sketch8.addGeometry(Part.LineSegment(App.Vector(43.6, 42.4, 0), App.Vector(43.6, 37.3, 0)), False)
sketch8.addGeometry(Part.LineSegment(App.Vector(43.6, 37.3, 0), App.Vector(48.7, 37.3, 0)), False)
sketch8.addGeometry(Part.LineSegment(App.Vector(48.7, 37.3, 0), App.Vector(48.7, 42.4, 0)), False)
sketch8.addGeometry(Part.LineSegment(App.Vector(48.7, 42.4, 0), App.Vector(43.6, 42.4, 0)), False)
sketch8.addGeometry(Part.LineSegment(App.Vector(15.7, 42.4, 0), App.Vector(15.7, 37.3, 0)), False)
sketch8.addGeometry(Part.LineSegment(App.Vector(15.7, 37.3, 0), App.Vector(20.7, 37.3, 0)), False)
sketch8.addGeometry(Part.LineSegment(App.Vector(20.7, 37.3, 0), App.Vector(20.7, 42.4, 0)), False)
sketch8.addGeometry(Part.LineSegment(App.Vector(20.7, 42.4, 0), App.Vector(15.7, 42.4, 0)), False)
sketch8.addConstraint(Sketcher.Constraint("Coincident", 0, 2, 1, 1))
sketch8.addConstraint(Sketcher.Constraint("Coincident", 1, 2, 2, 1))
sketch8.addConstraint(Sketcher.Constraint("Coincident", 2, 2, 3, 1))
sketch8.addConstraint(Sketcher.Constraint("Coincident", 3, 2, 0, 1))
sketch8.addConstraint(Sketcher.Constraint("Coincident", 4, 2, 5, 1))
sketch8.addConstraint(Sketcher.Constraint("Coincident", 5, 2, 6, 1))
sketch8.addConstraint(Sketcher.Constraint("Coincident", 6, 2, 7, 1))
sketch8.addConstraint(Sketcher.Constraint("Coincident", 7, 2, 4, 1))
sketch8.addConstraint(Sketcher.Constraint("Coincident", 8, 2, 9, 1))
sketch8.addConstraint(Sketcher.Constraint("Coincident", 9, 2, 10, 1))
sketch8.addConstraint(Sketcher.Constraint("Coincident", 10, 2, 11, 1))
sketch8.addConstraint(Sketcher.Constraint("Coincident", 11, 2, 8, 1))
sketch8.addConstraint(Sketcher.Constraint("Vertical", 0))
sketch8.addConstraint(Sketcher.Constraint("Horizontal", 1))
sketch8.addConstraint(Sketcher.Constraint("Vertical", 2))
sketch8.addConstraint(Sketcher.Constraint("Horizontal", 3))
sketch8.addConstraint(Sketcher.Constraint("Vertical", 4))
sketch8.addConstraint(Sketcher.Constraint("Horizontal", 5))
sketch8.addConstraint(Sketcher.Constraint("Vertical", 6))
sketch8.addConstraint(Sketcher.Constraint("Horizontal", 7))
sketch8.addConstraint(Sketcher.Constraint("Vertical", 8))
sketch8.addConstraint(Sketcher.Constraint("Horizontal", 9))
sketch8.addConstraint(Sketcher.Constraint("Vertical", 10))
sketch8.addConstraint(Sketcher.Constraint("Horizontal", 11))
sketch8.addConstraint(Sketcher.Constraint("Horizontal", 5, 2, 8, 2))
sketch8.addConstraint(Sketcher.Constraint("Horizontal", 7, 2, 10, 2))
sketch8.addConstraint(Sketcher.Constraint("Equal", 7, 9))
sketch8.addConstraint(Sketcher.Constraint("Equal", 11, 4))
sketch8.addConstraint(Sketcher.Constraint("DistanceX", 5, 1, 5, 2, Q("0.2 in")))
sketch8.addConstraint(Sketcher.Constraint("DistanceX", 1, 1, 1, 2, Q("0.55 in")))
sketch8.addConstraint(Sketcher.Constraint("DistanceY", 0, 2, 0, 1, Q("0.08 in")))
sketch8.addConstraint(Sketcher.Constraint("DistanceX", 8, 2, 4, 2, Q("1.1 in")))
sketch8.addConstraint(Sketcher.Constraint("DistanceX", 2, 2, 4, 2, Q("0.175 in")))
sketch8.addConstraint(Sketcher.Constraint("DistanceY", 4, 2, 2, 2, Q("0.0325 in")))
sketch8.addConstraint(Sketcher.Constraint("DistanceX", -1, 1, 0, 2, Q("25.186498 mm")))
sketch8.addConstraint(Sketcher.Constraint("DistanceY", -1, 1, 0, 2, Q("36.119832 mm")))
sketch8.setExpression("Constraints[28]", "Params.sketch8_width")
sketch8.setExpression("Constraints[29]", "Params.sketch8_width2")
sketch8.setExpression("Constraints[30]", "Params.sketch8_height")
pocket2 = body4.newObject("PartDesign::Pocket", "Pocket001")
pocket2.Profile = sketch8
pocket2.setExpression("Length", "Params.pocket2_length")

# Sketch on YZ plane
sketch9 = body4.newObject("Sketcher::SketchObject", "Sketch008")
sketch9.AttachmentSupport = (doc.getObject("YZ_Plane003"), [""])
sketch9.MapMode = "FlatFace"
sketch9.AttachmentOffset = App.Placement(App.Vector(0, 0, 0.15 * 25.4), App.Rotation())
sketch9.addGeometry(Part.LineSegment(App.Vector(25.2, 36.1, 0), App.Vector(25.2, 38.2, 0)), False)
sketch9.addGeometry(Part.LineSegment(App.Vector(25.2, 38.2, 0), App.Vector(39.2, 38.2, 0)), False)
sketch9.addGeometry(Part.LineSegment(App.Vector(39.2, 38.2, 0), App.Vector(39.2, 36.1, 0)), False)
sketch9.addGeometry(Part.LineSegment(App.Vector(39.2, 36.1, 0), App.Vector(42, 36.1, 0)), False)
sketch9.addGeometry(Part.LineSegment(App.Vector(42, 36.1, 0), App.Vector(42, 42.4, 0)), False)
sketch9.addGeometry(Part.LineSegment(App.Vector(42, 42.4, 0), App.Vector(22.4, 42.4, 0)), False)
sketch9.addGeometry(Part.LineSegment(App.Vector(22.4, 42.4, 0), App.Vector(22.4, 36.1, 0)), False)
sketch9.addGeometry(Part.LineSegment(App.Vector(22.4, 36.1, 0), App.Vector(25.2, 36.1, 0)), False)
sketch9.addConstraint(Sketcher.Constraint("Coincident", 0, 2, 1, 1))
sketch9.addConstraint(Sketcher.Constraint("Coincident", 1, 2, 2, 1))
sketch9.addConstraint(Sketcher.Constraint("Coincident", 2, 2, 3, 1))
sketch9.addConstraint(Sketcher.Constraint("Coincident", 3, 2, 4, 1))
sketch9.addConstraint(Sketcher.Constraint("Coincident", 4, 2, 5, 1))
sketch9.addConstraint(Sketcher.Constraint("Coincident", 5, 2, 6, 1))
sketch9.addConstraint(Sketcher.Constraint("Coincident", 6, 2, 7, 1))
sketch9.addConstraint(Sketcher.Constraint("Coincident", 7, 2, 0, 1))
sketch9.addConstraint(Sketcher.Constraint("Vertical", 0))
sketch9.addConstraint(Sketcher.Constraint("Horizontal", 1))
sketch9.addConstraint(Sketcher.Constraint("Vertical", 2))
sketch9.addConstraint(Sketcher.Constraint("Horizontal", 3))
sketch9.addConstraint(Sketcher.Constraint("Vertical", 4))
sketch9.addConstraint(Sketcher.Constraint("Horizontal", 5))
sketch9.addConstraint(Sketcher.Constraint("Vertical", 6))
sketch9.addConstraint(Sketcher.Constraint("Horizontal", 7))
sketch9.addConstraint(Sketcher.Constraint("Horizontal", 3, 2, 6, 2))
sketch9.addConstraint(Sketcher.Constraint("Equal", 3, 7))
sketch9.addConstraint(Sketcher.Constraint("DistanceX", 1, 1, 1, 2, Q("0.55 in")))
sketch9.addConstraint(Sketcher.Constraint("DistanceX", 3, 1, 3, 2, Q("0.11 in")))
sketch9.addConstraint(Sketcher.Constraint("DistanceY", 0, 1, 0, 2, Q("0.08 in")))
sketch9.addConstraint(Sketcher.Constraint("DistanceX", -1, 1, 0, 2, Q("25.186498 mm")))
sketch9.addConstraint(Sketcher.Constraint("DistanceY", 4, 1, 4, 2, Q("6.302787 mm")))
sketch9.addConstraint(Sketcher.Constraint("DistanceY", -1, 1, 4, 2, Q("42.422619 mm")))
sketch9.setExpression("Constraints[18]", "Params.sketch9_width")
sketch9.setExpression("Constraints[19]", "Params.sketch9_width2")
sketch9.setExpression("Constraints[20]", "Params.sketch9_height")
pad7 = body4.newObject("PartDesign::Pad", "Pad006")
pad7.Profile = sketch9
pad7.setExpression("Length", "Params.pad7_length")

# Sketch on YZ plane
sketch10 = body4.newObject("Sketcher::SketchObject", "Sketch009")
sketch10.AttachmentSupport = (doc.getObject("YZ_Plane003"), [""])
sketch10.MapMode = "FlatFace"
sketch10.AttachmentOffset = App.Placement(App.Vector(0, 0, 1.4 * 25.4), App.Rotation())
sketch10.addGeometry(Part.LineSegment(App.Vector(23.5, 40, 0), App.Vector(23.5, 36.1, 0)), False)
sketch10.addGeometry(Part.LineSegment(App.Vector(23.5, 36.1, 0), App.Vector(25.2, 36.1, 0)), False)
sketch10.addGeometry(Part.LineSegment(App.Vector(25.2, 36.1, 0), App.Vector(25.2, 38.2, 0)), False)
sketch10.addGeometry(Part.LineSegment(App.Vector(25.2, 38.2, 0), App.Vector(39.2, 38.2, 0)), False)
sketch10.addGeometry(Part.LineSegment(App.Vector(39.2, 38.2, 0), App.Vector(39.2, 36.1, 0)), False)
sketch10.addGeometry(Part.LineSegment(App.Vector(39.2, 36.1, 0), App.Vector(40.8, 36.1, 0)), False)
sketch10.addGeometry(Part.LineSegment(App.Vector(40.8, 36.1, 0), App.Vector(40.8, 40, 0)), False)
sketch10.addGeometry(Part.LineSegment(App.Vector(40.8, 40, 0), App.Vector(42, 40, 0)), False)
sketch10.addGeometry(Part.LineSegment(App.Vector(42, 40, 0), App.Vector(42, 42.4, 0)), False)
sketch10.addGeometry(Part.LineSegment(App.Vector(42, 42.4, 0), App.Vector(22.4, 42.4, 0)), False)
sketch10.addGeometry(Part.LineSegment(App.Vector(22.4, 42.4, 0), App.Vector(22.4, 40, 0)), False)
sketch10.addGeometry(Part.LineSegment(App.Vector(22.4, 40, 0), App.Vector(23.5, 40, 0)), False)
sketch10.addConstraint(Sketcher.Constraint("Coincident", 0, 2, 1, 1))
sketch10.addConstraint(Sketcher.Constraint("Coincident", 1, 2, 2, 1))
sketch10.addConstraint(Sketcher.Constraint("Coincident", 2, 2, 3, 1))
sketch10.addConstraint(Sketcher.Constraint("Coincident", 3, 2, 4, 1))
sketch10.addConstraint(Sketcher.Constraint("Coincident", 4, 2, 5, 1))
sketch10.addConstraint(Sketcher.Constraint("Coincident", 5, 2, 6, 1))
sketch10.addConstraint(Sketcher.Constraint("Coincident", 6, 2, 7, 1))
sketch10.addConstraint(Sketcher.Constraint("Coincident", 7, 2, 8, 1))
sketch10.addConstraint(Sketcher.Constraint("Coincident", 8, 2, 9, 1))
sketch10.addConstraint(Sketcher.Constraint("Coincident", 9, 2, 10, 1))
sketch10.addConstraint(Sketcher.Constraint("Coincident", 10, 2, 11, 1))
sketch10.addConstraint(Sketcher.Constraint("Coincident", 11, 2, 0, 1))
sketch10.addConstraint(Sketcher.Constraint("Vertical", 0))
sketch10.addConstraint(Sketcher.Constraint("Horizontal", 1))
sketch10.addConstraint(Sketcher.Constraint("Vertical", 2))
sketch10.addConstraint(Sketcher.Constraint("Horizontal", 3))
sketch10.addConstraint(Sketcher.Constraint("Vertical", 4))
sketch10.addConstraint(Sketcher.Constraint("Horizontal", 5))
sketch10.addConstraint(Sketcher.Constraint("Vertical", 6))
sketch10.addConstraint(Sketcher.Constraint("Horizontal", 7))
sketch10.addConstraint(Sketcher.Constraint("Vertical", 8))
sketch10.addConstraint(Sketcher.Constraint("Horizontal", 9))
sketch10.addConstraint(Sketcher.Constraint("Vertical", 10))
sketch10.addConstraint(Sketcher.Constraint("Horizontal", 11))
sketch10.addConstraint(Sketcher.Constraint("Horizontal", 1, 2, 4, 2))
sketch10.addConstraint(Sketcher.Constraint("Horizontal", 7, 2, 10, 2))
sketch10.addConstraint(Sketcher.Constraint("Equal", 1, 5))
sketch10.addConstraint(Sketcher.Constraint("Equal", 7, 11))
sketch10.addConstraint(Sketcher.Constraint("DistanceX", 3, 1, 3, 2, Q("0.55 in")))
sketch10.addConstraint(Sketcher.Constraint("DistanceX", 9, 2, 9, 1, Q("0.77 in")))
sketch10.addConstraint(Sketcher.Constraint("DistanceY", 2, 1, 2, 2, Q("0.08 in")))
sketch10.addConstraint(Sketcher.Constraint("DistanceX", 1, 1, 1, 2, Q("0.065 in")))
sketch10.addConstraint(Sketcher.Constraint("DistanceX", -1, 1, 0, 2, Q("23.535498 mm")))
sketch10.addConstraint(Sketcher.Constraint("DistanceY", 0, 2, 0, 1, Q("3.904143 mm")))
sketch10.addConstraint(Sketcher.Constraint("DistanceY", 8, 1, 8, 2, Q("2.398644 mm")))
sketch10.addConstraint(Sketcher.Constraint("DistanceY", -1, 1, 8, 2, Q("42.422619 mm")))
sketch10.setExpression("Constraints[28]", "Params.sketch10_width")
sketch10.setExpression("Constraints[29]", "Params.sketch10_width2")
sketch10.setExpression("Constraints[30]", "Params.sketch10_height")
sketch10.setExpression("Constraints[31]", "Params.sketch10_width3")
pocket3 = body4.newObject("PartDesign::Pocket", "Pocket002")
pocket3.Profile = sketch10
pocket3.setExpression("Length", "Params.pocket3_length")

doc.recompute()
